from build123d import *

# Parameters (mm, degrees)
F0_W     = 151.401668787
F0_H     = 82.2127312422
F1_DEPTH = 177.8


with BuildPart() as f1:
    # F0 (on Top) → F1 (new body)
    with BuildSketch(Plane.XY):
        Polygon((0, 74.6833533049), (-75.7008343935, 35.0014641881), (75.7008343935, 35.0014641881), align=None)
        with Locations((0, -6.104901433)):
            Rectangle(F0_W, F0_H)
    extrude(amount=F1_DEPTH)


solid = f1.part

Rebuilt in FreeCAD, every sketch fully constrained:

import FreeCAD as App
import Part
import Sketcher

V = App.Vector
Q = App.Units.Quantity


def add_polygon(sketch, points):
    """Adds a closed chain of lines whose ends are joined by coincident constraints."""
    first, n = sketch.GeometryCount, len(points)
    for a, b in zip(points, points[1:] + points[:1]):
        sketch.addGeometry(Part.LineSegment(App.Vector(*a, 0), App.Vector(*b, 0)), False)
    for i in range(n):
        sketch.addConstraint(Sketcher.Constraint("Coincident", first + i, 2, first + (i + 1) % n, 1))

doc = App.newDocument("Part")
body = doc.addObject("PartDesign::Body", "Body")

# Sketch on XY plane
sketch1 = doc.addObject("Sketcher::SketchObject", "Sketch")
body.addObject(sketch1)
sketch1.AttachmentSupport = (doc.XY_Plane, [""])
sketch1.MapMode = "FlatFace"
add_polygon(sketch1, [(0, 75), (-76, 35), (-76, -47), (76, -47), (76, 35)])  # lines 0-4
sketch1.addConstraint(Sketcher.Constraint("Vertical", 1))
sketch1.addConstraint(Sketcher.Constraint("Horizontal", 2))
sketch1.addConstraint(Sketcher.Constraint("Vertical", 3))
sketch1.addConstraint(Sketcher.Constraint("Symmetric", 0, 2, 3, 2, -2))
sketch1.addConstraint(Sketcher.Constraint("PointOnObject", 4, 2, -2))
sketch1.addConstraint(Sketcher.Constraint("DistanceX", 2, 1, 2, 2, Q("151.401669 mm")))
sketch1.addConstraint(Sketcher.Constraint("DistanceY", 1, 2, 1, 1, Q("82.212731 mm")))
sketch1.addConstraint(Sketcher.Constraint("DistanceY", 0, 2, 4, 2, Q("39.681889 mm")))
sketch1.addConstraint(Sketcher.Constraint("DistanceY", -1, 1, 0, 2, Q("35.001464 mm")))
pad1 = doc.addObject("PartDesign::Pad", "Pad")
body.addObject(pad1)
pad1.Profile = sketch1
pad1.Length = Q("7 in")

doc.recompute()
